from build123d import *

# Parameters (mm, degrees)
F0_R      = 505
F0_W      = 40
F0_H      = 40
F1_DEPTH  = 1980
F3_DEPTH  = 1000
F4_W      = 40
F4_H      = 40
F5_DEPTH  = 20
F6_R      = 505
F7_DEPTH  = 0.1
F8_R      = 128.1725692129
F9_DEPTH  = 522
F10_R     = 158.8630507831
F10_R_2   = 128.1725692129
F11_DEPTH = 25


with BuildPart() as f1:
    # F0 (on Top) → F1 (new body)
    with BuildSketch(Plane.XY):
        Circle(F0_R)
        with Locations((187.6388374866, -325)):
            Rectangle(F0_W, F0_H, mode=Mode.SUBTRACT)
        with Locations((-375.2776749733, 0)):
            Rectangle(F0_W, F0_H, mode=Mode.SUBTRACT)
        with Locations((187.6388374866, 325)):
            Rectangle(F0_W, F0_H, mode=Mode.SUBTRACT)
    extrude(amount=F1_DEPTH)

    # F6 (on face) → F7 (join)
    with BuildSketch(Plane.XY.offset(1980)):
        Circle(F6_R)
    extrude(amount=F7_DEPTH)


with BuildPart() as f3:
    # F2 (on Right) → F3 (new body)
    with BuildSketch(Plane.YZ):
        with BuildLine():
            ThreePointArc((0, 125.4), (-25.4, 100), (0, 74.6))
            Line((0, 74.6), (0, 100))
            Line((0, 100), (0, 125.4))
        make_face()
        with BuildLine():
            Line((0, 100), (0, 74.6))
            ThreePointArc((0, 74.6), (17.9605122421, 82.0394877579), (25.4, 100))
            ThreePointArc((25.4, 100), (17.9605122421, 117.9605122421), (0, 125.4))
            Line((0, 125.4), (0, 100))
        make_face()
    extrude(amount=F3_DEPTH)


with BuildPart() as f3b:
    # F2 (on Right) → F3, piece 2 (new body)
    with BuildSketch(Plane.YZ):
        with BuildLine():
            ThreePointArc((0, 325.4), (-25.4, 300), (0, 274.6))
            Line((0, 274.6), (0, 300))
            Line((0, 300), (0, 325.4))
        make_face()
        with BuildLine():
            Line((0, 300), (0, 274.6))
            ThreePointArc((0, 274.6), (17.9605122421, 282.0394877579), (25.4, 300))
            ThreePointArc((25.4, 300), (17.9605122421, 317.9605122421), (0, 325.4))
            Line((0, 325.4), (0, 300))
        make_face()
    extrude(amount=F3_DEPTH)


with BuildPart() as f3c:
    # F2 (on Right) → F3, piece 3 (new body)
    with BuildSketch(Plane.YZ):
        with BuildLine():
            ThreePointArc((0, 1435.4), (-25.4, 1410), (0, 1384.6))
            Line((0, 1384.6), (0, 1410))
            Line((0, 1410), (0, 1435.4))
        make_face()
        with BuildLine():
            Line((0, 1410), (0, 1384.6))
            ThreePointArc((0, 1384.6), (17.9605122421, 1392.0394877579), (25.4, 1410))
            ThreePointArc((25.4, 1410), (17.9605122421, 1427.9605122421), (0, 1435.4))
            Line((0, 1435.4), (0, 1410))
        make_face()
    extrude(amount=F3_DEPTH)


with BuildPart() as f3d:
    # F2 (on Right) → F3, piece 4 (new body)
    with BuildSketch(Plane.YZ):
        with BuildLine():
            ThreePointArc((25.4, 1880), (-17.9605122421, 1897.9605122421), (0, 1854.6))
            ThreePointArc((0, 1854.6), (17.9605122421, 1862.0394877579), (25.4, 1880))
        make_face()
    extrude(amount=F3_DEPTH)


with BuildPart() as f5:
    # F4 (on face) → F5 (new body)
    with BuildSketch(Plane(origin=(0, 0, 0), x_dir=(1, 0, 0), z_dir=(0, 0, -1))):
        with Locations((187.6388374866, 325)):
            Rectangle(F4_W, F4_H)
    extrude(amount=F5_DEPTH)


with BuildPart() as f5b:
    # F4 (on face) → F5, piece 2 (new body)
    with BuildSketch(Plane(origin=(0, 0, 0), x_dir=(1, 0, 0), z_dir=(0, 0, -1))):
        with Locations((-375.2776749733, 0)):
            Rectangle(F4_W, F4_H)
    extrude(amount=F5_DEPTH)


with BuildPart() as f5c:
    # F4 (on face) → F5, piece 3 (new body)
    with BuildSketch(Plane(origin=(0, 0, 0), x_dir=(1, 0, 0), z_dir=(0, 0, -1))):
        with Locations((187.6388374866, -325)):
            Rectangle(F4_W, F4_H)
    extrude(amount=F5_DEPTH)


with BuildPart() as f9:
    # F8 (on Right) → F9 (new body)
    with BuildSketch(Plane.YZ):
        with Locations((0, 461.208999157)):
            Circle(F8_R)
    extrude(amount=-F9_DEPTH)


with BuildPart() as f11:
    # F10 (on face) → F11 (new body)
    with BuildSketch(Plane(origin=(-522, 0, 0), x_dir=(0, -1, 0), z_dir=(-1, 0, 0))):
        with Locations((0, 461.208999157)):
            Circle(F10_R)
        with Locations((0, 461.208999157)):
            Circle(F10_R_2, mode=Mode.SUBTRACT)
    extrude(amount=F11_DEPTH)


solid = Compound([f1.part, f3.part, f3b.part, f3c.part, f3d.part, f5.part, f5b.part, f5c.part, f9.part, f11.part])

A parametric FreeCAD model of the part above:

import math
import FreeCAD as App
import Part
import Sketcher
from FreeCAD import Vector


def add_polygon(sketch, points):
    """Adds a closed chain of lines whose ends are joined by coincident constraints."""
    first, n = sketch.GeometryCount, len(points)
    for a, b in zip(points, points[1:] + points[:1]):
        sketch.addGeometry(Part.LineSegment(App.Vector(*a, 0), App.Vector(*b, 0)), False)
    for i in range(n):
        sketch.addConstraint(Sketcher.Constraint("Coincident", first + i, 2, first + (i + 1) % n, 1))

doc = App.newDocument("Part")
params = doc.addObject("Spreadsheet::Sheet", "Params")
for row, (alias, value) in enumerate([
    ("sketch1_diameter", "1010 mm"),
    ("sketch1_width", "40 mm"),
    ("pad1_length", "1980 mm"),
    ("sketch2_diameter", "1010 mm"),
    ("pad2_length", "0.1 mm"),
    ("sketch3_radius", "25.4 mm"),
    ("pad3_length", "1000 mm"),
    ("sketch4_radius", "25.4 mm"),
    ("pad4_length", "1000 mm"),
    ("sketch5_radius", "25.4 mm"),
    ("pad5_length", "1000 mm"),
    ("sketch6_radius", "25.4 mm"),
    ("pad6_length", "1000 mm"),
    ("sketch7_width", "40 mm"),
    ("pad7_length", "20 mm"),
    ("sketch8_width", "40 mm"),
    ("pad8_length", "20 mm"),
    ("sketch9_width", "40 mm"),
    ("pad9_length", "20 mm"),
    ("pad10_length", "522 mm"),
    ("pad11_length", "25 mm"),
], start=1):
    params.set(f"A{row}", alias)
    params.set(f"B{row}", "=" + value)
    params.setAlias(f"B{row}", alias)

body = doc.addObject("PartDesign::Body", "Body")

# Sketch on XY plane
sketch1 = body.newObject("Sketcher::SketchObject", "Sketch")
sketch1.AttachmentSupport = (doc.getObject("XY_Plane"), [""])
sketch1.MapMode = "FlatFace"
sketch1.addGeometry(Part.Circle(Vector(0, 0, 0), Vector(0, 0, 1), 505), False)  # 0
add_polygon(sketch1, [(208, -345), (168, -345), (168, -305), (208, -305)])  # lines 1-4
add_polygon(sketch1, [(-355, -20), (-395, -20), (-395, 20), (-355, 20)])  # lines 5-8
add_polygon(sketch1, [(208, 305), (168, 305), (168, 345), (208, 345)])  # lines 9-12
sketch1.addConstraint([
    Sketcher.Constraint("Horizontal", 1),
    Sketcher.Constraint("Vertical", 2),
    Sketcher.Constraint("Horizontal", 3),
    Sketcher.Constraint("Vertical", 4),
    Sketcher.Constraint("Horizontal", 5),
    Sketcher.Constraint("Vertical", 6),
    Sketcher.Constraint("Horizontal", 7),
    Sketcher.Constraint("Vertical", 8),
    Sketcher.Constraint("Horizontal", 9),
    Sketcher.Constraint("Vertical", 10),
    Sketcher.Constraint("Horizontal", 11),
    Sketcher.Constraint("Vertical", 12),
    Sketcher.Constraint("Coincident", 0, 3, -1, 1),
    Sketcher.Constraint("Symmetric", 2, 2, 9, 2, -1),
    Sketcher.Constraint("Symmetric", 4, 2, 11, 2, -1),
    Sketcher.Constraint("Equal", 3, 5),
    Sketcher.Constraint("Equal", 11, 2),
    Sketcher.Constraint("Equal", 4, 6),
    Sketcher.Constraint("Diameter", 0, 1010.0),
    Sketcher.Constraint("DistanceX", 1, 2, 1, 1, 40.0),
    Sketcher.Constraint("DistanceY", 1, 2, -1, 1, 345.0),
    Sketcher.Constraint("DistanceY", 5, 2, -1, 1, 20.0),
    Sketcher.Constraint("DistanceX", -1, 1, 1, 2, 167.638837),
    Sketcher.Constraint("DistanceX", 5, 2, -1, 1, 395.277675),
])
sketch1.setExpression("Constraints[30]", "Params.sketch1_diameter")
sketch1.setExpression("Constraints[31]", "Params.sketch1_width")
pad1 = body.newObject("PartDesign::Pad", "Pad")
pad1.Profile = sketch1
pad1.setExpression("Length", "Params.pad1_length")

# Sketch on XY plane
sketch2 = body.newObject("Sketcher::SketchObject", "Sketch001")
sketch2.AttachmentSupport = (doc.getObject("XY_Plane"), [""])
sketch2.MapMode = "FlatFace"
sketch2.AttachmentOffset = App.Placement(Vector(0, 0, 1980), App.Rotation())
sketch2.addGeometry(Part.Circle(Vector(0, 0, 0), Vector(0, 0, 1), 505), False)
sketch2.addConstraint([
    Sketcher.Constraint("Coincident", 0, 3, -1, 1),
    Sketcher.Constraint("Diameter", 0, 1010.0),
])
sketch2.setExpression("Constraints[1]", "Params.sketch2_diameter")
pad2 = body.newObject("PartDesign::Pad", "Pad001")
pad2.Profile = sketch2
pad2.setExpression("Length", "Params.pad2_length")
body2 = doc.addObject("PartDesign::Body", "Body001")

# Sketch on YZ plane
sketch3 = body2.newObject("Sketcher::SketchObject", "Sketch002")
sketch3.AttachmentSupport = (doc.getObject("YZ_Plane001"), [""])
sketch3.MapMode = "FlatFace"
sketch3.addGeometry([
    Part.ArcOfCircle(Part.Circle(Vector(0, 100, 0), Vector(0, 0, 1), 25), math.radians(90), math.radians(270)),
    Part.ArcOfCircle(Part.Circle(Vector(0, 100, 0), Vector(0, 0, 1), 25), math.radians(-90), math.radians(0)),
    Part.ArcOfCircle(Part.Circle(Vector(0, 100, 0), Vector(0, 0, 1), 25), math.radians(0), math.radians(90)),
], False)
sketch3.addConstraint([
    Sketcher.Constraint("Tangent", 0, 2, 1, 1),
    Sketcher.Constraint("Tangent", 1, 2, 2, 1),
    Sketcher.Constraint("Tangent", 2, 2, 0, 1),
    Sketcher.Constraint("PointOnObject", 0, 3, -2),
    Sketcher.Constraint("PointOnObject", 0, 2, -2),
    Sketcher.Constraint("PointOnObject", 2, 2, -2),
    Sketcher.Constraint("Horizontal", 2, 3, 1, 2),
    Sketcher.Constraint("Radius", 0, 25.4),
    Sketcher.Constraint("DistanceY", -1, 1, 0, 3, 100.0),
])
sketch3.setExpression("Constraints[7]", "Params.sketch3_radius")
pad3 = body2.newObject("PartDesign::Pad", "Pad002")
pad3.Profile = sketch3
pad3.setExpression("Length", "Params.pad3_length")
body3 = doc.addObject("PartDesign::Body", "Body002")

# Sketch on YZ plane
sketch4 = body3.newObject("Sketcher::SketchObject", "Sketch003")
sketch4.AttachmentSupport = (doc.getObject("YZ_Plane002"), [""])
sketch4.MapMode = "FlatFace"
sketch4.addGeometry([
    Part.ArcOfCircle(Part.Circle(Vector(0, 300, 0), Vector(0, 0, 1), 25), math.radians(90), math.radians(270)),
    Part.ArcOfCircle(Part.Circle(Vector(0, 300, 0), Vector(0, 0, 1), 25), math.radians(-90), math.radians(0)),
    Part.ArcOfCircle(Part.Circle(Vector(0, 300, 0), Vector(0, 0, 1), 25), math.radians(0), math.radians(90)),
], False)
sketch4.addConstraint([
    Sketcher.Constraint("Tangent", 0, 2, 1, 1),
    Sketcher.Constraint("Tangent", 1, 2, 2, 1),
    Sketcher.Constraint("Tangent", 2, 2, 0, 1),
    Sketcher.Constraint("PointOnObject", 0, 3, -2),
    Sketcher.Constraint("PointOnObject", 0, 2, -2),
    Sketcher.Constraint("PointOnObject", 2, 2, -2),
    Sketcher.Constraint("Horizontal", 2, 3, 1, 2),
    Sketcher.Constraint("Radius", 0, 25.4),
    Sketcher.Constraint("DistanceY", -1, 1, 0, 3, 300.0),
])
sketch4.setExpression("Constraints[7]", "Params.sketch4_radius")
pad4 = body3.newObject("PartDesign::Pad", "Pad003")
pad4.Profile = sketch4
pad4.setExpression("Length", "Params.pad4_length")
body4 = doc.addObject("PartDesign::Body", "Body003")

# Sketch on YZ plane
sketch5 = body4.newObject("Sketcher::SketchObject", "Sketch004")
sketch5.AttachmentSupport = (doc.getObject("YZ_Plane003"), [""])
sketch5.MapMode = "FlatFace"
sketch5.addGeometry([
    Part.ArcOfCircle(Part.Circle(Vector(0, 1410, 0), Vector(0, 0, 1), 25), math.radians(90), math.radians(270)),
    Part.ArcOfCircle(Part.Circle(Vector(0, 1410, 0), Vector(0, 0, 1), 25), math.radians(-90), math.radians(0)),
    Part.ArcOfCircle(Part.Circle(Vector(0, 1410, 0), Vector(0, 0, 1), 25), math.radians(0), math.radians(90)),
], False)
sketch5.addConstraint([
    Sketcher.Constraint("Tangent", 0, 2, 1, 1),
    Sketcher.Constraint("Tangent", 1, 2, 2, 1),
    Sketcher.Constraint("Tangent", 2, 2, 0, 1),
    Sketcher.Constraint("PointOnObject", 0, 3, -2),
    Sketcher.Constraint("PointOnObject", 0, 2, -2),
    Sketcher.Constraint("PointOnObject", 2, 2, -2),
    Sketcher.Constraint("Horizontal", 2, 3, 1, 2),
    Sketcher.Constraint("Radius", 0, 25.4),
    Sketcher.Constraint("DistanceY", -1, 1, 0, 3, 1410.0),
])
sketch5.setExpression("Constraints[7]", "Params.sketch5_radius")
pad5 = body4.newObject("PartDesign::Pad", "Pad004")
pad5.Profile = sketch5
pad5.setExpression("Length", "Params.pad5_length")
body5 = doc.addObject("PartDesign::Body", "Body004")

# Sketch on YZ plane
sketch6 = body5.newObject("Sketcher::SketchObject", "Sketch005")
sketch6.AttachmentSupport = (doc.getObject("YZ_Plane004"), [""])
sketch6.MapMode = "FlatFace"
sketch6.addGeometry([
    Part.ArcOfCircle(Part.Circle(Vector(0, 1880, 0), Vector(0, 0, 1), 25), math.radians(0), math.radians(270)),
    Part.ArcOfCircle(Part.Circle(Vector(0, 1880, 0), Vector(0, 0, 1), 25), math.radians(-90), math.radians(0)),
], False)
sketch6.addConstraint([
    Sketcher.Constraint("Tangent", 0, 1, 1, 2),
    Sketcher.Constraint("Coincident", 1, 1, 0, 2),
    Sketcher.Constraint("PointOnObject", 0, 3, -2),
    Sketcher.Constraint("PointOnObject", 1, 1, -2),
    Sketcher.Constraint("Horizontal", 1, 3, 0, 1),
    Sketcher.Constraint("Radius", 0, 25.4),
    Sketcher.Constraint("DistanceY", -1, 1, 0, 3, 1880.0),
])
sketch6.setExpression("Constraints[5]", "Params.sketch6_radius")
pad6 = body5.newObject("PartDesign::Pad", "Pad005")
pad6.Profile = sketch6
pad6.setExpression("Length", "Params.pad6_length")
body6 = doc.addObject("PartDesign::Body", "Body005")

# Sketch on XY plane
sketch7 = body6.newObject("Sketcher::SketchObject", "Sketch006")
sketch7.AttachmentSupport = (doc.getObject("XY_Plane005"), [""])
sketch7.MapMode = "FlatFace"
add_polygon(sketch7, [(168, -345), (168, -305), (208, -305), (208, -345)])  # lines 0-3
sketch7.addConstraint([
    Sketcher.Constraint("Vertical", 0),
    Sketcher.Constraint("Horizontal", 1),
    Sketcher.Constraint("Vertical", 2),
    Sketcher.Constraint("Horizontal", 3),
    Sketcher.Constraint("Equal", 3, 0),
    Sketcher.Constraint("DistanceX", 1, 1, 1, 2, 40.0),
    Sketcher.Constraint("DistanceY", 0, 2, -1, 1, 305.0),
    Sketcher.Constraint("DistanceX", -1, 1, 0, 2, 167.638837),
])
sketch7.setExpression("Constraints[9]", "Params.sketch7_width")
pad7 = body6.newObject("PartDesign::Pad", "Pad006")
pad7.Profile = sketch7
pad7.setExpression("Length", "Params.pad7_length")
pad7.Reversed = True
body7 = doc.addObject("PartDesign::Body", "Body006")

# Sketch on XY plane
sketch8 = body7.newObject("Sketcher::SketchObject", "Sketch007")
sketch8.AttachmentSupport = (doc.getObject("XY_Plane006"), [""])
sketch8.MapMode = "FlatFace"
add_polygon(sketch8, [(-395, -20), (-395, 20), (-355, 20), (-355, -20)])  # lines 0-3
sketch8.addConstraint([
    Sketcher.Constraint("Vertical", 0),
    Sketcher.Constraint("Horizontal", 1),
    Sketcher.Constraint("Vertical", 2),
    Sketcher.Constraint("Horizontal", 3),
    Sketcher.Constraint("Equal", 3, 0),
    Sketcher.Constraint("DistanceX", 1, 1, 1, 2, 40.0),
    Sketcher.Constraint("DistanceY", -1, 1, 0, 2, 20.0),
    Sketcher.Constraint("DistanceX", 0, 2, -1, 1, 395.277675),
])
sketch8.setExpression("Constraints[9]", "Params.sketch8_width")
pad8 = body7.newObject("PartDesign::Pad", "Pad007")
pad8.Profile = sketch8
pad8.setExpression("Length", "Params.pad8_length")
pad8.Reversed = True
body8 = doc.addObject("PartDesign::Body", "Body007")

# Sketch on XY plane
sketch9 = body8.newObject("Sketcher::SketchObject", "Sketch008")
sketch9.AttachmentSupport = (doc.getObject("XY_Plane007"), [""])
sketch9.MapMode = "FlatFace"
add_polygon(sketch9, [(168, 305), (168, 345), (208, 345), (208, 305)])  # lines 0-3
sketch9.addConstraint([
    Sketcher.Constraint("Vertical", 0),
    Sketcher.Constraint("Horizontal", 1),
    Sketcher.Constraint("Vertical", 2),
    Sketcher.Constraint("Horizontal", 3),
    Sketcher.Constraint("Equal", 3, 0),
    Sketcher.Constraint("DistanceX", 1, 1, 1, 2, 40.0),
    Sketcher.Constraint("DistanceY", -1, 1, 0, 2, 345.0),
    Sketcher.Constraint("DistanceX", -1, 1, 0, 2, 167.638837),
])
sketch9.setExpression("Constraints[9]", "Params.sketch9_width")
pad9 = body8.newObject("PartDesign::Pad", "Pad008")
pad9.Profile = sketch9
pad9.setExpression("Length", "Params.pad9_length")
pad9.Reversed = True
body9 = doc.addObject("PartDesign::Body", "Body008")

# Sketch on YZ plane
sketch10 = body9.newObject("Sketcher::SketchObject", "Sketch009")
sketch10.AttachmentSupport = (doc.getObject("YZ_Plane008"), [""])
sketch10.MapMode = "FlatFace"
sketch10.addGeometry(Part.Circle(Vector(0, 461, 0), Vector(0, 0, 1), 128), False)
sketch10.addConstraint([
    Sketcher.Constraint("PointOnObject", 0, 3, -2),
    Sketcher.Constraint("Diameter", 0, 256.345138),
    Sketcher.Constraint("DistanceY", -1, 1, 0, 3, 461.208999),
])
pad10 = body9.newObject("PartDesign::Pad", "Pad009")
pad10.Profile = sketch10
pad10.setExpression("Length", "Params.pad10_length")
pad10.Reversed = True
body10 = doc.addObject("PartDesign::Body", "Body009")

# Sketch on YZ plane
sketch11 = body10.newObject("Sketcher::SketchObject", "Sketch010")
sketch11.AttachmentSupport = (doc.getObject("YZ_Plane009"), [""])
sketch11.MapMode = "FlatFace"
sketch11.AttachmentOffset = App.Placement(Vector(0, 0, -522), App.Rotation())
sketch11.addGeometry([
    Part.Circle(Vector(0, 461, 0), Vector(0, 0, 1), 159),
    Part.Circle(Vector(0, 461, 0), Vector(0, 0, 1), 128),
], False)
sketch11.addConstraint([
    Sketcher.Constraint("Coincident", 1, 3, 0, 3),
    Sketcher.Constraint("PointOnObject", 0, 3, -2),
    Sketcher.Constraint("Diameter", 0, 317.726102),
    Sketcher.Constraint("Diameter", 1, 256.345138),
    Sketcher.Constraint("DistanceY", -1, 1, 0, 3, 461.208999),
])
pad11 = body10.newObject("PartDesign::Pad", "Pad010")
pad11.Profile = sketch11
pad11.setExpression("Length", "Params.pad11_length")
pad11.Reversed = True

doc.recompute()
